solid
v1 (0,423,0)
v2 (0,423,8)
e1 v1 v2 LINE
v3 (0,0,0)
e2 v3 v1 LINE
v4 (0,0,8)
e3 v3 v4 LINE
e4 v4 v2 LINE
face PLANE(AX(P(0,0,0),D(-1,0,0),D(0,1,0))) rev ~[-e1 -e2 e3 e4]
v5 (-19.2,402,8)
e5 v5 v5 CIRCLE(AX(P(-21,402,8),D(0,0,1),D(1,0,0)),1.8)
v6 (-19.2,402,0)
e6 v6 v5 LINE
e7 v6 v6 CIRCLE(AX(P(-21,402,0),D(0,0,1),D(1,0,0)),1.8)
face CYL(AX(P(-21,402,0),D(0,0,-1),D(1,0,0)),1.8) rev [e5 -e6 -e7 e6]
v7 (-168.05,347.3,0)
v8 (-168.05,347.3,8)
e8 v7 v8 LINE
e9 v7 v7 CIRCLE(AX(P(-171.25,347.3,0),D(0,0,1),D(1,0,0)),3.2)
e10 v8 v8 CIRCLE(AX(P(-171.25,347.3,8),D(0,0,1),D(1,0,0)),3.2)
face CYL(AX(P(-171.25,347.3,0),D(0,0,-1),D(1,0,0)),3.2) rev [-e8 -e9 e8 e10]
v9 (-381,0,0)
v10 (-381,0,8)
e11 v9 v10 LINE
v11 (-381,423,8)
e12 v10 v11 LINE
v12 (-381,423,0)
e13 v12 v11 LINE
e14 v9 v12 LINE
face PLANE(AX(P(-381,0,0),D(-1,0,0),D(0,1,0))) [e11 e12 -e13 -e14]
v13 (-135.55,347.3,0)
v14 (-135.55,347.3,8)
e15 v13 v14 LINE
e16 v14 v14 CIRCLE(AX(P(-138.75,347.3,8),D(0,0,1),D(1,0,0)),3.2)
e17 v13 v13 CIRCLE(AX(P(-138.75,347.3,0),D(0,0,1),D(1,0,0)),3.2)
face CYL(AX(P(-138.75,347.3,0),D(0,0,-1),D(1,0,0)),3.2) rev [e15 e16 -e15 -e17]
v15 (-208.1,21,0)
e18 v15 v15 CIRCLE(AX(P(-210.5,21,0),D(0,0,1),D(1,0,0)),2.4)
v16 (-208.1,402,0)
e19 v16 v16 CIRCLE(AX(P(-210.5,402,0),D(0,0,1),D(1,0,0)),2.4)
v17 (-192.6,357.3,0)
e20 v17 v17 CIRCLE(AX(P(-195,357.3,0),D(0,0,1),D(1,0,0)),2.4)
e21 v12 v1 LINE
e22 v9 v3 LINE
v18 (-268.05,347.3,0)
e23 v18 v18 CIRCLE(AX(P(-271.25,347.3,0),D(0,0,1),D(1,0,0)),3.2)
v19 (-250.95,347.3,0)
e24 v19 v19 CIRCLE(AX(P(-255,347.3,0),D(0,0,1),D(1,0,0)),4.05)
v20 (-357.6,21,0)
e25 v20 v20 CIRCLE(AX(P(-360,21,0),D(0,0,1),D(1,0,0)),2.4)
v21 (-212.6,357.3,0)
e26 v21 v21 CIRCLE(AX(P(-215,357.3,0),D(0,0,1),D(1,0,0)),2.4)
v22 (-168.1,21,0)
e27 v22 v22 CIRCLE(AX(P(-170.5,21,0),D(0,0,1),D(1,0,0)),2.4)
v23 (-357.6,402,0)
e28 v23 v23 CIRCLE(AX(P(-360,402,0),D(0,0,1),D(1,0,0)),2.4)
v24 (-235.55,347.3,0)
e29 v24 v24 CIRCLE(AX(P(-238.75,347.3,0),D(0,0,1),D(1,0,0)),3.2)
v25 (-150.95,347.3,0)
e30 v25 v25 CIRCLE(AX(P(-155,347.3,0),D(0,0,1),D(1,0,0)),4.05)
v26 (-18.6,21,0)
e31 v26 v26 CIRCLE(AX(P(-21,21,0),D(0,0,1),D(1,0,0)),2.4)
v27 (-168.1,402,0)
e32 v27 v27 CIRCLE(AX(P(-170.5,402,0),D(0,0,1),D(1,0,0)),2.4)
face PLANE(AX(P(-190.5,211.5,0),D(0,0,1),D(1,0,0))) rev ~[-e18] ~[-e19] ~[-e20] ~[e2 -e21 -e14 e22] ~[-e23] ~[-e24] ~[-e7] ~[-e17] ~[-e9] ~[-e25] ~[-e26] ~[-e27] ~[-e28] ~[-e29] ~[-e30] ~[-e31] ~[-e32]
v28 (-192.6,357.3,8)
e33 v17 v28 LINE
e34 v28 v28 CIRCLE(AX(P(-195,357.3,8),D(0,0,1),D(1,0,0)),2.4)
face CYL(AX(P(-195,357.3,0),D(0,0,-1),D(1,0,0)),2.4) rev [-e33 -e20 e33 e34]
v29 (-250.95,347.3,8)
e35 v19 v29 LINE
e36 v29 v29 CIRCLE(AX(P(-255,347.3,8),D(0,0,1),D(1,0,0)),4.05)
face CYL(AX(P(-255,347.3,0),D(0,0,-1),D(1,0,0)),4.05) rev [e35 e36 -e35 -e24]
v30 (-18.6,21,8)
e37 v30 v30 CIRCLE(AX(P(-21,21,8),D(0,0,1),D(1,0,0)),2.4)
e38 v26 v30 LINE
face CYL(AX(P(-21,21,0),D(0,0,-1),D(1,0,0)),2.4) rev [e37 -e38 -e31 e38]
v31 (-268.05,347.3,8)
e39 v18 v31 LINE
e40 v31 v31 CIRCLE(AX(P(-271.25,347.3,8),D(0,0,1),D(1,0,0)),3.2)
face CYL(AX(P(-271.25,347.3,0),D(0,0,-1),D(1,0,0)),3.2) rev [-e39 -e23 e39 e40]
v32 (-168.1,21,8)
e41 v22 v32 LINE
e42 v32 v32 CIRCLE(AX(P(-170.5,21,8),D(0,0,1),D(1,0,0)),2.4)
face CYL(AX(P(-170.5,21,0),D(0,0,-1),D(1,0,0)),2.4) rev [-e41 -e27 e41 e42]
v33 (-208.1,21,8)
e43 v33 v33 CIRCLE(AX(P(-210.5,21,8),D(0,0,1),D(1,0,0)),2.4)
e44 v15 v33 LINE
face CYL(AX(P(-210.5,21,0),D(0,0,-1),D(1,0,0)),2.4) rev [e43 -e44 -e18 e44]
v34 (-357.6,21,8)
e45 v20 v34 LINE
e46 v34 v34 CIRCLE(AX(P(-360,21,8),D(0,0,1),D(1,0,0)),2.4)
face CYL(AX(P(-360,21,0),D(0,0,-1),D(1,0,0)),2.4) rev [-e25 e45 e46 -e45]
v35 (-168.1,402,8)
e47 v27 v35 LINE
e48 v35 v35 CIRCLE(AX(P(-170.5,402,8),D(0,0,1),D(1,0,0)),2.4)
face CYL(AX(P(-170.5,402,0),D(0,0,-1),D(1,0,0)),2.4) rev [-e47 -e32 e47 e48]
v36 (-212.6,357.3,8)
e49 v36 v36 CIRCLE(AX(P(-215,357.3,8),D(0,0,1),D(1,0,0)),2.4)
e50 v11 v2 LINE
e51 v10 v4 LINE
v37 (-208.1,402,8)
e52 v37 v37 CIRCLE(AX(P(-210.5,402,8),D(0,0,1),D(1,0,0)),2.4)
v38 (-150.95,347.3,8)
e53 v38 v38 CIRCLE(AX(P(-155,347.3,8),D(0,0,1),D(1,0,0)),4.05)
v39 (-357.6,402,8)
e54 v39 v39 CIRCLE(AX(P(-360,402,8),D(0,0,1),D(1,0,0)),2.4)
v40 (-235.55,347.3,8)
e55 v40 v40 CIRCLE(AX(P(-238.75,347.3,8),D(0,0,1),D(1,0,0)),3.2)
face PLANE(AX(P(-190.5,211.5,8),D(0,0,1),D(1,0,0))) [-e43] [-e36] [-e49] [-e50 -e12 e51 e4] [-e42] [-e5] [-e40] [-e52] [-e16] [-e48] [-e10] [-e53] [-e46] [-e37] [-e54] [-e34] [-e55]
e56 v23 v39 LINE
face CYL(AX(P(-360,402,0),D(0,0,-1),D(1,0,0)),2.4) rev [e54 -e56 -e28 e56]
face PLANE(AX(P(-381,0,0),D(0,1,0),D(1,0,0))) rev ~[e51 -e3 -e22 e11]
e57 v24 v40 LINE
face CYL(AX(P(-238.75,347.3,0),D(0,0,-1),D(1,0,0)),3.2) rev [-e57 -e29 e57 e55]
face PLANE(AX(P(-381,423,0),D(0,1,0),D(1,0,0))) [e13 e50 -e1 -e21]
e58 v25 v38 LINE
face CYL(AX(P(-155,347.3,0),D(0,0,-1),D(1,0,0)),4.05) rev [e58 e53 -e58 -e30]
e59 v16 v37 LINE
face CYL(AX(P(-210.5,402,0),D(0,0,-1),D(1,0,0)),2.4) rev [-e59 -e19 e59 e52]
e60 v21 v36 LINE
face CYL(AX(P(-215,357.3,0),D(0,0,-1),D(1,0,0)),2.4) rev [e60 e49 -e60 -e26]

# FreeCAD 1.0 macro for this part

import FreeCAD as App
import Part
import Sketcher

doc = App.newDocument("Part")
params = doc.addObject("Spreadsheet::Sheet", "Params")
for row, (alias, value) in enumerate([
    ("sketch1_diameter", "4.8 mm"),
    ("sketch1_diameter2", "6.4 mm"),
    ("sketch1_diameter3", "8.1 mm"),
    ("sketch1_diameter4", "3.6 mm"),
    ("sketch1_width", "381 mm"),
    ("pad1_length", "8 mm"),
], start=1):
    params.set(f"A{row}", alias)
    params.set(f"B{row}", "=" + value)
    params.setAlias(f"B{row}", alias)

body = doc.addObject("PartDesign::Body", "Body")

sketch1 = body.newObject("Sketcher::SketchObject", "Sketch")
sketch1.AttachmentSupport = (doc.getObject("XY_Plane"), [""])
sketch1.MapMode = "FlatFace"
sketch1.addGeometry([
    Part.LineSegment(App.Vector(-381, 423, 0), App.Vector(-381, 0, 0)),
    Part.LineSegment(App.Vector(-381, 0, 0), App.Vector(0, 0, 0)),
    Part.LineSegment(App.Vector(0, 0, 0), App.Vector(0, 423, 0)),
    Part.LineSegment(App.Vector(0, 423, 0), App.Vector(-381, 423, 0)),
    Part.Circle(App.Vector(-360, 21, 0), App.Vector(0, 0, 1), 2.4),
    Part.Circle(App.Vector(-210.5, 21, 0), App.Vector(0, 0, 1), 2.4),
    Part.Circle(App.Vector(-170.5, 21, 0), App.Vector(0, 0, 1), 2.4),
    Part.Circle(App.Vector(-21, 21, 0), App.Vector(0, 0, 1), 2.4),
    Part.Circle(App.Vector(-360, 402, 0), App.Vector(0, 0, 1), 2.4),
    Part.Circle(App.Vector(-271.25, 347.3, 0), App.Vector(0, 0, 1), 3.2),
    Part.Circle(App.Vector(-255, 347.3, 0), App.Vector(0, 0, 1), 4.05),
    Part.Circle(App.Vector(-238.75, 347.3, 0), App.Vector(0, 0, 1), 3.2),
    Part.Circle(App.Vector(-215, 357.3, 0), App.Vector(0, 0, 1), 2.4),
    Part.Circle(App.Vector(-195, 357.3, 0), App.Vector(0, 0, 1), 2.4),
    Part.Circle(App.Vector(-210.5, 402, 0), App.Vector(0, 0, 1), 2.4),
    Part.Circle(App.Vector(-171.25, 347.3, 0), App.Vector(0, 0, 1), 3.2),
    Part.Circle(App.Vector(-155, 347.3, 0), App.Vector(0, 0, 1), 4.05),
    Part.Circle(App.Vector(-138.75, 347.3, 0), App.Vector(0, 0, 1), 3.2),
    Part.Circle(App.Vector(-170.5, 402, 0), App.Vector(0, 0, 1), 2.4),
    Part.Circle(App.Vector(-21, 402, 0), App.Vector(0, 0, 1), 1.8),
], False)
sketch1.addConstraint([
    Sketcher.Constraint("Coincident", 0, 2, 1, 1),
    Sketcher.Constraint("Coincident", 1, 2, 2, 1),
    Sketcher.Constraint("Coincident", 2, 2, 3, 1),
    Sketcher.Constraint("Coincident", 3, 2, 0, 1),
    Sketcher.Constraint("Vertical", 0),
    Sketcher.Constraint("Horizontal", 1),
    Sketcher.Constraint("Vertical", 2),
    Sketcher.Constraint("Horizontal", 3),
    Sketcher.Constraint("Coincident", 1, 2, -1, 1),
    Sketcher.Constraint("Equal", 4, 5),
    Sketcher.Constraint("Equal", 5, 6),
    Sketcher.Constraint("Equal", 6, 7),
    Sketcher.Constraint("Equal", 7, 8),
    Sketcher.Constraint("Equal", 9, 11),
    Sketcher.Constraint("Equal", 8, 12),
    Sketcher.Constraint("Equal", 12, 13),
    Sketcher.Constraint("Equal", 13, 14),
    Sketcher.Constraint("Equal", 11, 15),
    Sketcher.Constraint("Equal", 10, 16),
    Sketcher.Constraint("Equal", 15, 17),
    Sketcher.Constraint("Equal", 14, 18),
    Sketcher.Constraint("Horizontal", 4, 3, 5, 3),
    Sketcher.Constraint("Horizontal", 5, 3, 6, 3),
    Sketcher.Constraint("Horizontal", 6, 3, 7, 3),
    Sketcher.Constraint("Horizontal", 9, 3, 10, 3),
    Sketcher.Constraint("Horizontal", 10, 3, 11, 3),
    Sketcher.Constraint("Horizontal", 12, 3, 13, 3),
    Sketcher.Constraint("Horizontal", 8, 3, 14, 3),
    Sketcher.Constraint("Horizontal", 11, 3, 15, 3),
    Sketcher.Constraint("Horizontal", 15, 3, 16, 3),
    Sketcher.Constraint("Horizontal", 16, 3, 17, 3),
    Sketcher.Constraint("Horizontal", 14, 3, 18, 3),
    Sketcher.Constraint("Horizontal", 18, 3, 19, 3),
    Sketcher.Constraint("Vertical", 4, 3, 8, 3),
    Sketcher.Constraint("Vertical", 5, 3, 14, 3),
    Sketcher.Constraint("Vertical", 6, 3, 18, 3),
    Sketcher.Constraint("Vertical", 7, 3, 19, 3),
    Sketcher.Constraint("Diameter", 4, 4.8),
    Sketcher.Constraint("Diameter", 9, 6.4),
    Sketcher.Constraint("Diameter", 10, 8.1),
    Sketcher.Constraint("Diameter", 19, 3.6),
    Sketcher.Constraint("DistanceX", 1, 1, 1, 2, 381.0),
    Sketcher.Constraint("DistanceY", 0, 2, 0, 1, 423.0),
    Sketcher.Constraint("DistanceX", 4, 3, -1, 1, 360.0),
    Sketcher.Constraint("DistanceY", -1, 1, 4, 3, 21.0),
    Sketcher.Constraint("DistanceX", 7, 3, -1, 1, 21.0),
    Sketcher.Constraint("DistanceY", -1, 1, 8, 3, 402.0),
    Sketcher.Constraint("DistanceX", 10, 3, -1, 1, 255.0),
    Sketcher.Constraint("DistanceX", 12, 3, -1, 1, 215.0),
    Sketcher.Constraint("DistanceX", 13, 3, -1, 1, 195.0),
    Sketcher.Constraint("DistanceX", 16, 3, -1, 1, 155.0),
    Sketcher.Constraint("DistanceX", 5, 3, 6, 3, 40.0),
    Sketcher.Constraint("DistanceY", 11, 3, 12, 3, 10.0),
    Sketcher.Constraint("DistanceX", 5, 3, -1, 1, 210.5),
    Sketcher.Constraint("DistanceY", -1, 1, 9, 3, 347.3),
    Sketcher.Constraint("DistanceX", 9, 3, 11, 3, 32.5),
    Sketcher.Constraint("DistanceX", 11, 3, 15, 3, 67.5),
    Sketcher.Constraint("DistanceX", 15, 3, 17, 3, 32.5),
    Sketcher.Constraint("DistanceX", 9, 3, -1, 1, 271.25),
])
sketch1.setExpression("Constraints[37]", "Params.sketch1_diameter")
sketch1.setExpression("Constraints[38]", "Params.sketch1_diameter2")
sketch1.setExpression("Constraints[39]", "Params.sketch1_diameter3")
sketch1.setExpression("Constraints[40]", "Params.sketch1_diameter4")
sketch1.setExpression("Constraints[41]", "Params.sketch1_width")
pad1 = body.newObject("PartDesign::Pad", "Pad")
pad1.Profile = sketch1
pad1.setExpression("Length", "Params.pad1_length")

doc.recompute()
